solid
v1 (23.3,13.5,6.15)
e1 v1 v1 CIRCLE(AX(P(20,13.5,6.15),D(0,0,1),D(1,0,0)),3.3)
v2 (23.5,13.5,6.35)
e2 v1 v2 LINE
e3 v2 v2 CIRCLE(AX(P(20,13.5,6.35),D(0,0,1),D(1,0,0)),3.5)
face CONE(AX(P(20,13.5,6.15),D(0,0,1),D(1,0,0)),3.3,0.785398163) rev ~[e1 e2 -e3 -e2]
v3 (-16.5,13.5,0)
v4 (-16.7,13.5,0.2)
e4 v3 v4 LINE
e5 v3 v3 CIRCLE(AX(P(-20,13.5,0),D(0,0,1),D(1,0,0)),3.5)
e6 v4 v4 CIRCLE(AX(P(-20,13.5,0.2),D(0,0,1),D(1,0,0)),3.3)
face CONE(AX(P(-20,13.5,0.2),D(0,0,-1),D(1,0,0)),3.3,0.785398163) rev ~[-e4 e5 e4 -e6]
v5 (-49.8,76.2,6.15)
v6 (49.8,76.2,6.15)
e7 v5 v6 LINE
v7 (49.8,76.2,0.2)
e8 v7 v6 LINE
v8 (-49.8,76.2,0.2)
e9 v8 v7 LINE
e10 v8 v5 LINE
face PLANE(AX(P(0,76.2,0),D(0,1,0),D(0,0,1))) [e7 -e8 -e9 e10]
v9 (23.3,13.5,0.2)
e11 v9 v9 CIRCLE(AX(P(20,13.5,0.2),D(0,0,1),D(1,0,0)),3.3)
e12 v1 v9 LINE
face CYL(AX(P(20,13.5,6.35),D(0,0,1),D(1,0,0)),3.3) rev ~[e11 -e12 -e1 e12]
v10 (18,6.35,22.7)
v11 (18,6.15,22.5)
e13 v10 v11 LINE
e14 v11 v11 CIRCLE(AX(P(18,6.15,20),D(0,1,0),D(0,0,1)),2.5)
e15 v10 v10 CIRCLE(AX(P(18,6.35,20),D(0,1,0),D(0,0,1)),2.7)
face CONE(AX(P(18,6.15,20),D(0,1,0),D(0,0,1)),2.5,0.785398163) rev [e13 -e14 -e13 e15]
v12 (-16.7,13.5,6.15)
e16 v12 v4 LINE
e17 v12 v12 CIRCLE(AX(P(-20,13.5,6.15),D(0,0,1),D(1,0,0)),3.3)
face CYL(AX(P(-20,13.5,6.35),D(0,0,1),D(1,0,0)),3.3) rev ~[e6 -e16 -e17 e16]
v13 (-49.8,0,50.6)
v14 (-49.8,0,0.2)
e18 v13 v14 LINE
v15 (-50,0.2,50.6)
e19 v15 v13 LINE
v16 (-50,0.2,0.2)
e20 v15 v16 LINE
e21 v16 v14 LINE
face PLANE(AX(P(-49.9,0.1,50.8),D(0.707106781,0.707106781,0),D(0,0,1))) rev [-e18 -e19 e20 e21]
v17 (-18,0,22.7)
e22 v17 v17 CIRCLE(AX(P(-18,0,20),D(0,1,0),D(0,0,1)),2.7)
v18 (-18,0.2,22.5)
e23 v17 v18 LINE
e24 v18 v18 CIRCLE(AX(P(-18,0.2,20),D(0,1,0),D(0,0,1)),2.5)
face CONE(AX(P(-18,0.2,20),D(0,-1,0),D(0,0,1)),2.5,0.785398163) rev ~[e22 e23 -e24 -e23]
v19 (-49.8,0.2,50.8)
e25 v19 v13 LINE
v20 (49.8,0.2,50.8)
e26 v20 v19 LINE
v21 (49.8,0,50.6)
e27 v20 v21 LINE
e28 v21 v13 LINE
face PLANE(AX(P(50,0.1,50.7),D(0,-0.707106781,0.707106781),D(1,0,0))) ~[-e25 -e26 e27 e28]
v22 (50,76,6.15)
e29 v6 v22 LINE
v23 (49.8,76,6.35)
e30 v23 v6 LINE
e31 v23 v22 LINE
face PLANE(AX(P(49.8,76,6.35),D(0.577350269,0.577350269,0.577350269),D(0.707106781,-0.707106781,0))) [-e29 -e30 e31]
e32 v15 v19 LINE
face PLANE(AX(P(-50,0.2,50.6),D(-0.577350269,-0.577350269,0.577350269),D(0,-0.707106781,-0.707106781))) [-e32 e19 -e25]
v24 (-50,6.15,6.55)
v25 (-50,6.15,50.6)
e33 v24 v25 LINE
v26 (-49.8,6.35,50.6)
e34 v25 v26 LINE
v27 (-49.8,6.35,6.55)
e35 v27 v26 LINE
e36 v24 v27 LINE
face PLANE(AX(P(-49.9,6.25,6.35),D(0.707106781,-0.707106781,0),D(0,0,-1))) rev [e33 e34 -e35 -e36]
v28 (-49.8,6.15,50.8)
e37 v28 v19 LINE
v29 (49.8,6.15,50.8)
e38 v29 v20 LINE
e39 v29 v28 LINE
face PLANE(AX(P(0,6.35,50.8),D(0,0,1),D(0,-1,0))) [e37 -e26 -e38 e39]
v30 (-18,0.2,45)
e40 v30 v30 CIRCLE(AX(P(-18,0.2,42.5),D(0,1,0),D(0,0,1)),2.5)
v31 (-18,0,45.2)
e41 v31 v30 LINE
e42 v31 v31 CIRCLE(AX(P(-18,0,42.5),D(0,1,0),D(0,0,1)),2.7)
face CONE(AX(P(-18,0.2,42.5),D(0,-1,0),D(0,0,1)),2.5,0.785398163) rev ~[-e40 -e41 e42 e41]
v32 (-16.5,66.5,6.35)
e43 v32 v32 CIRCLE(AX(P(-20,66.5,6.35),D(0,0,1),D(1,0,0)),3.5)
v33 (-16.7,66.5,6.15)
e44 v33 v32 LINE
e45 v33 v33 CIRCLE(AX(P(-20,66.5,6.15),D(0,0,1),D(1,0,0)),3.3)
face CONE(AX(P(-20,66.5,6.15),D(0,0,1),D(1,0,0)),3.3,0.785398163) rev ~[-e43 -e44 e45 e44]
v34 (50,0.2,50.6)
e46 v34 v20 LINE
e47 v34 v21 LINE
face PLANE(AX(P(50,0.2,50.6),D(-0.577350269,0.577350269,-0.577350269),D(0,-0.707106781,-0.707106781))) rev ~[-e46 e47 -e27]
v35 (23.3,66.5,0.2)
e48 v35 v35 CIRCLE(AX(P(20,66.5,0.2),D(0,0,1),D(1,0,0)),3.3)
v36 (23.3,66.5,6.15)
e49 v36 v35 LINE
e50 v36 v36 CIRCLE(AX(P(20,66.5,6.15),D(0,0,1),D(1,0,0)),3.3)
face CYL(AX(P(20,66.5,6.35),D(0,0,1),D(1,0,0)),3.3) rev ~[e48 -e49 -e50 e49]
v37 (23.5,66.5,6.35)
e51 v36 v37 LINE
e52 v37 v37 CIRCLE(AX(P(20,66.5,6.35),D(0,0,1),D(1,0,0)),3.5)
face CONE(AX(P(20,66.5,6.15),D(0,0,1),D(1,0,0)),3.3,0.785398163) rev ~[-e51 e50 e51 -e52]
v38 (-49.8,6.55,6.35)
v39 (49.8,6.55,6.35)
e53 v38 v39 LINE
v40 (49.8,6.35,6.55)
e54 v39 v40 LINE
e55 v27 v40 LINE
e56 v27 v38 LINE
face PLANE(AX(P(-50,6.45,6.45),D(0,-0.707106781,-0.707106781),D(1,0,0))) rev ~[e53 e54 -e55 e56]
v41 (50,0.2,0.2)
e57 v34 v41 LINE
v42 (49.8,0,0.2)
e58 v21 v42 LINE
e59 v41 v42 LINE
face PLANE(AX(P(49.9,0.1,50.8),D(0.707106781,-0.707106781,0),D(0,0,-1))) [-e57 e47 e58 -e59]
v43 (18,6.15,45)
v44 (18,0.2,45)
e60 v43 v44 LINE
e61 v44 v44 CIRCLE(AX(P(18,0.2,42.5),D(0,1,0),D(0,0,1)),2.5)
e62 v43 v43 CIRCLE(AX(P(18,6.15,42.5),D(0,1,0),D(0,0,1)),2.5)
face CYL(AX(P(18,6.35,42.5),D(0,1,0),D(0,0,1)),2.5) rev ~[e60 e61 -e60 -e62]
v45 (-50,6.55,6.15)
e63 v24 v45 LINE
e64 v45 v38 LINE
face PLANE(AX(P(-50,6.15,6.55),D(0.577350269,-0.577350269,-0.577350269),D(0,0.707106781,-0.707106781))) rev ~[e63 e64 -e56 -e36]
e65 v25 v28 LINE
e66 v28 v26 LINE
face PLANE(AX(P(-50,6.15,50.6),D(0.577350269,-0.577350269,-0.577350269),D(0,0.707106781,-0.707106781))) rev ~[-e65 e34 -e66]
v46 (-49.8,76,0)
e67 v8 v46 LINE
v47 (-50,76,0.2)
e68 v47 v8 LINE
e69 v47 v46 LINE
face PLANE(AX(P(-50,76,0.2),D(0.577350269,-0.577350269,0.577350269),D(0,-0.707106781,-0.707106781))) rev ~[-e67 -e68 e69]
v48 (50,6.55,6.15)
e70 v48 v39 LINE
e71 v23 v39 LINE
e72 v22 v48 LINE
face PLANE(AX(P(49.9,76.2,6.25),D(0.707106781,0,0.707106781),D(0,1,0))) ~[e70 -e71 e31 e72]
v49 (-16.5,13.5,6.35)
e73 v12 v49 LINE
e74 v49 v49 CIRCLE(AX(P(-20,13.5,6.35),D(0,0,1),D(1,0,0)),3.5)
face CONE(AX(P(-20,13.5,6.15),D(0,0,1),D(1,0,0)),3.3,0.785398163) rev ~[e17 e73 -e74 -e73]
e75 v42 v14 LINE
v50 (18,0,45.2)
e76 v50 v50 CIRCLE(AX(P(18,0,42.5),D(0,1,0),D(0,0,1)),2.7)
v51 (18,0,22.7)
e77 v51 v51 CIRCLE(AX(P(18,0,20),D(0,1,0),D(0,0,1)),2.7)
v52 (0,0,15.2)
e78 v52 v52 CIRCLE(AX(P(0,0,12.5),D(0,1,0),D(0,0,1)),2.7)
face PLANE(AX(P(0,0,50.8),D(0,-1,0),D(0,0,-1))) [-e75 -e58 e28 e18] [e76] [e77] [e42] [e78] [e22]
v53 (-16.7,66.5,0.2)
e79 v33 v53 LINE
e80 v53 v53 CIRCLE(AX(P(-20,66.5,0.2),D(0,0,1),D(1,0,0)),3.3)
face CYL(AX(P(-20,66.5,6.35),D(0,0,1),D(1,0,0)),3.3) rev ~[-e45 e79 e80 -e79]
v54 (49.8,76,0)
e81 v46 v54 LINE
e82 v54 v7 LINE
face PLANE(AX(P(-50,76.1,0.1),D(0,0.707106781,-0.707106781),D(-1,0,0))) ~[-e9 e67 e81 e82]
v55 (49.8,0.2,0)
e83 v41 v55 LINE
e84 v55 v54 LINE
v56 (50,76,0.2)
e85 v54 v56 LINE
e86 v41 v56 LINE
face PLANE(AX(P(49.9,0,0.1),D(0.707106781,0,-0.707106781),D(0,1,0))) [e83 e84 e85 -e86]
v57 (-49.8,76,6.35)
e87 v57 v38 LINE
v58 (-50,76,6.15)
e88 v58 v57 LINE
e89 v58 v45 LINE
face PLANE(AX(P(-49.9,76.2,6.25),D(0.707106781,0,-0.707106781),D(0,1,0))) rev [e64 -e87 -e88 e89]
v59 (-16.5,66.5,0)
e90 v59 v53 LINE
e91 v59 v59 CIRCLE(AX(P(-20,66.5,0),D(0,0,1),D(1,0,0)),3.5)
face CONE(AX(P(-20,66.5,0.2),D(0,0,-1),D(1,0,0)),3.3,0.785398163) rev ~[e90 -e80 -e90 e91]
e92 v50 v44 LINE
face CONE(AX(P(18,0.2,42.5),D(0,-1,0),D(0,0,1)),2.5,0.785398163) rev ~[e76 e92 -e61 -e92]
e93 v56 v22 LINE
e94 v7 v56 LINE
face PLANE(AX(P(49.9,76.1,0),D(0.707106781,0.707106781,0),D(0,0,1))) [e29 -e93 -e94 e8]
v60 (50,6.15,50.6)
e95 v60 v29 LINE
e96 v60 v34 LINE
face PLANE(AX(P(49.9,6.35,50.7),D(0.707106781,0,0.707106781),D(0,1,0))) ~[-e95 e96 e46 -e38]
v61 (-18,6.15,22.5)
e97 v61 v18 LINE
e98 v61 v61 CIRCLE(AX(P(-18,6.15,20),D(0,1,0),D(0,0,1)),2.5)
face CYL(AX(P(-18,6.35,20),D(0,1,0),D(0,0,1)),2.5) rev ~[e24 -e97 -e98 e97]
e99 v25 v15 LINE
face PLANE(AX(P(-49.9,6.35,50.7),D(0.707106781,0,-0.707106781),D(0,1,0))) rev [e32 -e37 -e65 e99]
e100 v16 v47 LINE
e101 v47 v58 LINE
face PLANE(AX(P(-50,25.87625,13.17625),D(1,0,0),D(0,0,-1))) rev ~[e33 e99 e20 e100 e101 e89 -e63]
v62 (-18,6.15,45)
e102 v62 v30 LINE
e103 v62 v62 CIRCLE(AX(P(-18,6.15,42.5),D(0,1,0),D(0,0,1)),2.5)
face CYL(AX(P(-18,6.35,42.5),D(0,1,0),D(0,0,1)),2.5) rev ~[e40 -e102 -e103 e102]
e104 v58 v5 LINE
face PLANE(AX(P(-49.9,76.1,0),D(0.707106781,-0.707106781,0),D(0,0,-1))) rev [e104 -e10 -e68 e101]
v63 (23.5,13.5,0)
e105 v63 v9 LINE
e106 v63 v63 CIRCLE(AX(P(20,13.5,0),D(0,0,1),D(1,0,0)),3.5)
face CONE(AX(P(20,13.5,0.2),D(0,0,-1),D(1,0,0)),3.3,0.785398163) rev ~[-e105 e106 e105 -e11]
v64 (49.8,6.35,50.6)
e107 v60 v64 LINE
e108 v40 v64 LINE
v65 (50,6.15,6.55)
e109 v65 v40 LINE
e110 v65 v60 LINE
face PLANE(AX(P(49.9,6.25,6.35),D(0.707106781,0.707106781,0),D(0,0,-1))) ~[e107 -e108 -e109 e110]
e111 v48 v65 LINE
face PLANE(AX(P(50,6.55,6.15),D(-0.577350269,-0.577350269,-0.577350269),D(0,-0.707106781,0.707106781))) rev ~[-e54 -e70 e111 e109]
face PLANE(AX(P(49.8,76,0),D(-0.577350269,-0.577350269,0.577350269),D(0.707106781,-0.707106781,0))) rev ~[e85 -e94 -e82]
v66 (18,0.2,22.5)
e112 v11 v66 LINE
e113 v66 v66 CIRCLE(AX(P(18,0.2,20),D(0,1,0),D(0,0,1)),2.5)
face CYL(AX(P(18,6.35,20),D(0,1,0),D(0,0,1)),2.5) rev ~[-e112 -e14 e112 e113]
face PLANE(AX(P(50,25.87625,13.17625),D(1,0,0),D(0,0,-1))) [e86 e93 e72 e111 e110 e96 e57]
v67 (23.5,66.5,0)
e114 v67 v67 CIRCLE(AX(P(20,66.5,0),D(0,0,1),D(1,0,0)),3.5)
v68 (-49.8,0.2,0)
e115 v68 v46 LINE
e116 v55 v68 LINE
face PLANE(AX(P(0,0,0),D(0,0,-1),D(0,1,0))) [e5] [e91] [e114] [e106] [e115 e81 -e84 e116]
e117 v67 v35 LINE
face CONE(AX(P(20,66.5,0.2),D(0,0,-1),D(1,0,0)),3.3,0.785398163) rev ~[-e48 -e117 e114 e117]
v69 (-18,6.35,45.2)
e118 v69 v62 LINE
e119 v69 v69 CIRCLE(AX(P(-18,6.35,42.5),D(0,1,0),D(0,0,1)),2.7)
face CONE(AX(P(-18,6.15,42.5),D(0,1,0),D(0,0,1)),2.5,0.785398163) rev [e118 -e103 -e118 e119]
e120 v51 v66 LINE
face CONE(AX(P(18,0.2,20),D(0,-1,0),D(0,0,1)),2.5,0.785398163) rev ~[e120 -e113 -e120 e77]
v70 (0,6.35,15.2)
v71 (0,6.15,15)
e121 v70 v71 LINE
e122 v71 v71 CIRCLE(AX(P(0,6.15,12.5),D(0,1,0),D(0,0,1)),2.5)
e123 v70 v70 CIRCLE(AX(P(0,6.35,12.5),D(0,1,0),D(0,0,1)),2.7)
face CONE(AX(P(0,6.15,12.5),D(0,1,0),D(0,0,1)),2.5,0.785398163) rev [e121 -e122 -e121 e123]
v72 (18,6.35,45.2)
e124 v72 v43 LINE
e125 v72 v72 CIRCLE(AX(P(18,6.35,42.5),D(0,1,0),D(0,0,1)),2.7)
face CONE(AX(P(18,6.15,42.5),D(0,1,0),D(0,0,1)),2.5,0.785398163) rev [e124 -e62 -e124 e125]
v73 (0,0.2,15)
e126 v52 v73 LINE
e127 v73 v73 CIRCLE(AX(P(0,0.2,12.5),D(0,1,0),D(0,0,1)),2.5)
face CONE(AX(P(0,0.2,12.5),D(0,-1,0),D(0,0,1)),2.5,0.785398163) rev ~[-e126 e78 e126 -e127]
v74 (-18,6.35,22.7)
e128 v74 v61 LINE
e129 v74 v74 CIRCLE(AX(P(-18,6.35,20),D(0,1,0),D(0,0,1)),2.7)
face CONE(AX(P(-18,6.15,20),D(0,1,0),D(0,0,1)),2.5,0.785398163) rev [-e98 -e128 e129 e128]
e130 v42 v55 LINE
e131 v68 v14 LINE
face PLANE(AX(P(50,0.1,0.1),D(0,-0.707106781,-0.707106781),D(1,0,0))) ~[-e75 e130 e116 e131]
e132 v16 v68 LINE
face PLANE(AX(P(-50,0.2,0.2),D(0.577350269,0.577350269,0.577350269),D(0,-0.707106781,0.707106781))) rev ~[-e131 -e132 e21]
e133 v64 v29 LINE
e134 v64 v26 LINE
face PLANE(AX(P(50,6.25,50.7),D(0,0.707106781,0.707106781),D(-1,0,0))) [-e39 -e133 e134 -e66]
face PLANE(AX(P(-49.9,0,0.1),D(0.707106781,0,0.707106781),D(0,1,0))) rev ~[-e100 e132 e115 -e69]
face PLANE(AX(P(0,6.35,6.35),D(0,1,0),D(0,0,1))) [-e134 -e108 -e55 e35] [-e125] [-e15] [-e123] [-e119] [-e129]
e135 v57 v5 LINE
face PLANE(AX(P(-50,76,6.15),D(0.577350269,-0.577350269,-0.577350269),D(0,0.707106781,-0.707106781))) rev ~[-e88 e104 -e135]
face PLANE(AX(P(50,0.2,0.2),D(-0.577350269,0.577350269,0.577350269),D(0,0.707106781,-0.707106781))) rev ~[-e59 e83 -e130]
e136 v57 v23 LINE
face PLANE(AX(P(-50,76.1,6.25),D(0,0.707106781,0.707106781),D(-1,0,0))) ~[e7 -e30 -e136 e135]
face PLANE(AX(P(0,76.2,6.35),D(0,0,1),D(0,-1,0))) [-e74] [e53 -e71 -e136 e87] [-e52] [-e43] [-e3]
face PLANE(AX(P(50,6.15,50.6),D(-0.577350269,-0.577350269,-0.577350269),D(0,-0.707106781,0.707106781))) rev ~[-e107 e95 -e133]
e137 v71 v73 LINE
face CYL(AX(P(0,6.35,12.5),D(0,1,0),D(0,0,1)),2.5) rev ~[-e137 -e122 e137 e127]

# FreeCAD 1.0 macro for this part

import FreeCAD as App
import Part
import Sketcher
Q = App.Units.Quantity

doc = App.newDocument("Part")
params = doc.addObject("Spreadsheet::Sheet", "Params")
for row, (alias, value) in enumerate([
    ("sketch1_width", "76.2 mm"),
    ("sketch1_height", "50.8 mm"),
    ("sketch1_width2", "69.85 mm"),
    ("pad1_length", "100 mm"),
    ("sketch2_diameter", "6.6 mm"),
    ("pocket1_length", "100 mm"),
    ("sketch3_diameter", "5 mm"),
    ("pocket2_length", "100 mm"),
    ("chamfer_size", "0.2 mm"),
], start=1):
    params.set(f"A{row}", alias)
    params.set(f"B{row}", "=" + value)
    params.setAlias(f"B{row}", alias)

body = doc.addObject("PartDesign::Body", "Body")

sketch1 = body.newObject("Sketcher::SketchObject", "Sketch")
sketch1.AttachmentSupport = (doc.getObject("YZ_Plane"), [""])
sketch1.MapMode = "FlatFace"
sketch1.addGeometry(Part.LineSegment(App.Vector(0, 0, 0), App.Vector(76.2, 0, 0)), False)
sketch1.addGeometry(Part.LineSegment(App.Vector(76.2, 0, 0), App.Vector(76.2, 6.35, 0)), False)
sketch1.addGeometry(Part.LineSegment(App.Vector(76.2, 6.35, 0), App.Vector(6.35, 6.35, 0)), False)
sketch1.addGeometry(Part.LineSegment(App.Vector(6.35, 6.35, 0), App.Vector(6.35, 50.8, 0)), False)
sketch1.addGeometry(Part.LineSegment(App.Vector(6.35, 50.8, 0), App.Vector(0, 50.8, 0)), False)
sketch1.addGeometry(Part.LineSegment(App.Vector(0, 50.8, 0), App.Vector(0, 0, 0)), False)
sketch1.addConstraint(Sketcher.Constraint("Coincident", 0, 2, 1, 1))
sketch1.addConstraint(Sketcher.Constraint("Coincident", 1, 2, 2, 1))
sketch1.addConstraint(Sketcher.Constraint("Coincident", 2, 2, 3, 1))
sketch1.addConstraint(Sketcher.Constraint("Coincident", 3, 2, 4, 1))
sketch1.addConstraint(Sketcher.Constraint("Coincident", 4, 2, 5, 1))
sketch1.addConstraint(Sketcher.Constraint("Coincident", 5, 2, 0, 1))
sketch1.addConstraint(Sketcher.Constraint("Horizontal", 0))
sketch1.addConstraint(Sketcher.Constraint("Vertical", 1))
sketch1.addConstraint(Sketcher.Constraint("Horizontal", 2))
sketch1.addConstraint(Sketcher.Constraint("Vertical", 3))
sketch1.addConstraint(Sketcher.Constraint("Horizontal", 4))
sketch1.addConstraint(Sketcher.Constraint("Vertical", 5))
sketch1.addConstraint(Sketcher.Constraint("Coincident", 5, 2, -1, 1))
sketch1.addConstraint(Sketcher.Constraint("Equal", 4, 1))
sketch1.addConstraint(Sketcher.Constraint("DistanceX", 0, 1, 0, 2, Q("76.2 mm")))
sketch1.addConstraint(Sketcher.Constraint("DistanceY", 5, 2, 5, 1, Q("50.8 mm")))
sketch1.addConstraint(Sketcher.Constraint("DistanceX", 2, 2, 2, 1, Q("69.85 mm")))
sketch1.setExpression("Constraints[14]", "Params.sketch1_width")
sketch1.setExpression("Constraints[15]", "Params.sketch1_height")
sketch1.setExpression("Constraints[16]", "Params.sketch1_width2")
pad1 = body.newObject("PartDesign::Pad", "Pad")
pad1.Profile = sketch1
pad1.setExpression("Length", "Params.pad1_length")
pad1.Midplane = True

sketch2 = body.newObject("Sketcher::SketchObject", "Sketch001")
sketch2.AttachmentSupport = (doc.getObject("XY_Plane"), [""])
sketch2.MapMode = "FlatFace"
sketch2.AttachmentOffset = App.Placement(App.Vector(0, 0, 6.35), App.Rotation())
sketch2.addGeometry(Part.Circle(App.Vector(-20, 66.5, 0), App.Vector(0, 0, 1), 3.3), False)
sketch2.addGeometry(Part.Circle(App.Vector(20, 66.5, 0), App.Vector(0, 0, 1), 3.3), False)
sketch2.addGeometry(Part.Circle(App.Vector(20, 13.5, 0), App.Vector(0, 0, 1), 3.3), False)
sketch2.addGeometry(Part.Circle(App.Vector(-20, 13.5, 0), App.Vector(0, 0, 1), 3.3), False)
sketch2.addConstraint(Sketcher.Constraint("Equal", 0, 1))
sketch2.addConstraint(Sketcher.Constraint("Equal", 1, 2))
sketch2.addConstraint(Sketcher.Constraint("Equal", 2, 3))
sketch2.addConstraint(Sketcher.Constraint("Symmetric", 0, 3, 1, 3, -2))
sketch2.addConstraint(Sketcher.Constraint("Symmetric", 2, 3, 3, 3, -2))
sketch2.addConstraint(Sketcher.Constraint("Vertical", 1, 3, 2, 3))
sketch2.addConstraint(Sketcher.Constraint("Diameter", 0, Q("6.6 mm")))
sketch2.addConstraint(Sketcher.Constraint("DistanceX", 0, 3, -1, 1, Q("20 mm")))
sketch2.addConstraint(Sketcher.Constraint("DistanceY", 2, 3, 1, 3, Q("53 mm")))
sketch2.addConstraint(Sketcher.Constraint("DistanceY", -1, 1, 0, 3, Q("66.5 mm")))
sketch2.setExpression("Constraints[6]", "Params.sketch2_diameter")
pocket1 = body.newObject("PartDesign::Pocket", "Pocket")
pocket1.Profile = sketch2
pocket1.setExpression("Length", "Params.pocket1_length")

sketch3 = body.newObject("Sketcher::SketchObject", "Sketch002")
sketch3.AttachmentSupport = (doc.getObject("XZ_Plane"), [""])
sketch3.MapMode = "FlatFace"
sketch3.AttachmentOffset = App.Placement(App.Vector(0, 0, -6.35), App.Rotation())
sketch3.addGeometry(Part.Circle(App.Vector(-18, 20, 0), App.Vector(0, 0, 1), 2.5), False)
sketch3.addGeometry(Part.Circle(App.Vector(-18, 42.5, 0), App.Vector(0, 0, 1), 2.5), False)
sketch3.addGeometry(Part.Circle(App.Vector(18, 42.5, 0), App.Vector(0, 0, 1), 2.5), False)
sketch3.addGeometry(Part.Circle(App.Vector(18, 20, 0), App.Vector(0, 0, 1), 2.5), False)
sketch3.addGeometry(Part.Circle(App.Vector(0, 12.5, 0), App.Vector(0, 0, 1), 2.5), False)
sketch3.addConstraint(Sketcher.Constraint("Equal", 0, 1))
sketch3.addConstraint(Sketcher.Constraint("Equal", 1, 2))
sketch3.addConstraint(Sketcher.Constraint("Equal", 2, 3))
sketch3.addConstraint(Sketcher.Constraint("Equal", 3, 4))
sketch3.addConstraint(Sketcher.Constraint("Symmetric", 1, 3, 2, 3, -2))
sketch3.addConstraint(Sketcher.Constraint("Symmetric", 0, 3, 3, 3, -2))
sketch3.addConstraint(Sketcher.Constraint("PointOnObject", 4, 3, -2))
sketch3.addConstraint(Sketcher.Constraint("Vertical", 0, 3, 1, 3))
sketch3.addConstraint(Sketcher.Constraint("Diameter", 0, Q("5 mm")))
sketch3.addConstraint(Sketcher.Constraint("DistanceX", 0, 3, -1, 1, Q("18 mm")))
sketch3.addConstraint(Sketcher.Constraint("DistanceY", -1, 1, 0, 3, Q("20 mm")))
sketch3.addConstraint(Sketcher.Constraint("DistanceY", 4, 3, 1, 3, Q("30 mm")))
sketch3.addConstraint(Sketcher.Constraint("DistanceY", -1, 1, 1, 3, Q("42.5 mm")))
sketch3.setExpression("Constraints[8]", "Params.sketch3_diameter")
pocket2 = body.newObject("PartDesign::Pocket", "Pocket001")
pocket2.Profile = sketch3
pocket2.setExpression("Length", "Params.pocket2_length")
pocket2.Reversed = True
doc.recompute()

chamfer = body.newObject("PartDesign::Chamfer", "Chamfer")
chamfer.Base = (pocket2, ["Edge1"])
chamfer.UseAllEdges = True
chamfer.setExpression("Size", "Params.chamfer_size")

doc.recompute()
